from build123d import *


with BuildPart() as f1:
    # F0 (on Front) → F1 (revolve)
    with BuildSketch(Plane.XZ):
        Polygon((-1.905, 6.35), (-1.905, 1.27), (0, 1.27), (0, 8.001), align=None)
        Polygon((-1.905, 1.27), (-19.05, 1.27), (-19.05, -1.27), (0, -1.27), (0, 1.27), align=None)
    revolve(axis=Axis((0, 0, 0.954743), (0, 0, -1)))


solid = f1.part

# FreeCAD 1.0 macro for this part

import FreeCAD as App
import Part
import Sketcher
from FreeCAD import Vector
Q = App.Units.Quantity

doc = App.newDocument("Part")
body = doc.addObject("PartDesign::Body", "Body")

sketch1 = body.newObject("Sketcher::SketchObject", "Sketch")
sketch1.AttachmentSupport = (doc.getObject("XZ_Plane"), [""])
sketch1.MapMode = "FlatFace"
sketch1.addGeometry([
    Part.LineSegment(Vector(-1.905, 6.35, 0), Vector(-1.905, 1.27, 0)),
    Part.LineSegment(Vector(-1.905, 1.27, 0), Vector(-19.05, 1.27, 0)),
    Part.LineSegment(Vector(-19.05, 1.27, 0), Vector(-19.05, -1.27, 0)),
    Part.LineSegment(Vector(-19.05, -1.27, 0), Vector(0, -1.27, 0)),
    Part.LineSegment(Vector(0, -1.27, 0), Vector(0, 8.001, 0)),
    Part.LineSegment(Vector(0, 8.001, 0), Vector(-1.905, 6.35, 0)),
], False)
sketch1.addConstraint([
    Sketcher.Constraint("Coincident", 0, 2, 1, 1),
    Sketcher.Constraint("Coincident", 1, 2, 2, 1),
    Sketcher.Constraint("Coincident", 2, 2, 3, 1),
    Sketcher.Constraint("Coincident", 3, 2, 4, 1),
    Sketcher.Constraint("Coincident", 4, 2, 5, 1),
    Sketcher.Constraint("Coincident", 5, 2, 0, 1),
    Sketcher.Constraint("Vertical", 0),
    Sketcher.Constraint("Horizontal", 1),
    Sketcher.Constraint("Vertical", 2),
    Sketcher.Constraint("Horizontal", 3),
    Sketcher.Constraint("Vertical", 4),
    Sketcher.Constraint("PointOnObject", 3, 2, -2),
    Sketcher.Constraint("DistanceY", 0, 2, 0, 1, Q("0.2 in")),
    Sketcher.Constraint("DistanceY", 2, 2, 2, 1, Q("0.1 in")),
    Sketcher.Constraint("DistanceX", 3, 1, 3, 2, Q("0.75 in")),
    Sketcher.Constraint("DistanceX", 1, 2, 1, 1, Q("0.675 in")),
    Sketcher.Constraint("DistanceY", 4, 1, 4, 2, Q("0.365 in")),
    Sketcher.Constraint("DistanceY", -1, 1, 0, 2, Q("0.05 in")),
])
revolution = body.newObject("PartDesign::Revolution", "Revolution")
revolution.Profile = sketch1
revolution.ReferenceAxis = (sketch1, ["V_Axis"])
revolution.Angle = 360

doc.recompute()
